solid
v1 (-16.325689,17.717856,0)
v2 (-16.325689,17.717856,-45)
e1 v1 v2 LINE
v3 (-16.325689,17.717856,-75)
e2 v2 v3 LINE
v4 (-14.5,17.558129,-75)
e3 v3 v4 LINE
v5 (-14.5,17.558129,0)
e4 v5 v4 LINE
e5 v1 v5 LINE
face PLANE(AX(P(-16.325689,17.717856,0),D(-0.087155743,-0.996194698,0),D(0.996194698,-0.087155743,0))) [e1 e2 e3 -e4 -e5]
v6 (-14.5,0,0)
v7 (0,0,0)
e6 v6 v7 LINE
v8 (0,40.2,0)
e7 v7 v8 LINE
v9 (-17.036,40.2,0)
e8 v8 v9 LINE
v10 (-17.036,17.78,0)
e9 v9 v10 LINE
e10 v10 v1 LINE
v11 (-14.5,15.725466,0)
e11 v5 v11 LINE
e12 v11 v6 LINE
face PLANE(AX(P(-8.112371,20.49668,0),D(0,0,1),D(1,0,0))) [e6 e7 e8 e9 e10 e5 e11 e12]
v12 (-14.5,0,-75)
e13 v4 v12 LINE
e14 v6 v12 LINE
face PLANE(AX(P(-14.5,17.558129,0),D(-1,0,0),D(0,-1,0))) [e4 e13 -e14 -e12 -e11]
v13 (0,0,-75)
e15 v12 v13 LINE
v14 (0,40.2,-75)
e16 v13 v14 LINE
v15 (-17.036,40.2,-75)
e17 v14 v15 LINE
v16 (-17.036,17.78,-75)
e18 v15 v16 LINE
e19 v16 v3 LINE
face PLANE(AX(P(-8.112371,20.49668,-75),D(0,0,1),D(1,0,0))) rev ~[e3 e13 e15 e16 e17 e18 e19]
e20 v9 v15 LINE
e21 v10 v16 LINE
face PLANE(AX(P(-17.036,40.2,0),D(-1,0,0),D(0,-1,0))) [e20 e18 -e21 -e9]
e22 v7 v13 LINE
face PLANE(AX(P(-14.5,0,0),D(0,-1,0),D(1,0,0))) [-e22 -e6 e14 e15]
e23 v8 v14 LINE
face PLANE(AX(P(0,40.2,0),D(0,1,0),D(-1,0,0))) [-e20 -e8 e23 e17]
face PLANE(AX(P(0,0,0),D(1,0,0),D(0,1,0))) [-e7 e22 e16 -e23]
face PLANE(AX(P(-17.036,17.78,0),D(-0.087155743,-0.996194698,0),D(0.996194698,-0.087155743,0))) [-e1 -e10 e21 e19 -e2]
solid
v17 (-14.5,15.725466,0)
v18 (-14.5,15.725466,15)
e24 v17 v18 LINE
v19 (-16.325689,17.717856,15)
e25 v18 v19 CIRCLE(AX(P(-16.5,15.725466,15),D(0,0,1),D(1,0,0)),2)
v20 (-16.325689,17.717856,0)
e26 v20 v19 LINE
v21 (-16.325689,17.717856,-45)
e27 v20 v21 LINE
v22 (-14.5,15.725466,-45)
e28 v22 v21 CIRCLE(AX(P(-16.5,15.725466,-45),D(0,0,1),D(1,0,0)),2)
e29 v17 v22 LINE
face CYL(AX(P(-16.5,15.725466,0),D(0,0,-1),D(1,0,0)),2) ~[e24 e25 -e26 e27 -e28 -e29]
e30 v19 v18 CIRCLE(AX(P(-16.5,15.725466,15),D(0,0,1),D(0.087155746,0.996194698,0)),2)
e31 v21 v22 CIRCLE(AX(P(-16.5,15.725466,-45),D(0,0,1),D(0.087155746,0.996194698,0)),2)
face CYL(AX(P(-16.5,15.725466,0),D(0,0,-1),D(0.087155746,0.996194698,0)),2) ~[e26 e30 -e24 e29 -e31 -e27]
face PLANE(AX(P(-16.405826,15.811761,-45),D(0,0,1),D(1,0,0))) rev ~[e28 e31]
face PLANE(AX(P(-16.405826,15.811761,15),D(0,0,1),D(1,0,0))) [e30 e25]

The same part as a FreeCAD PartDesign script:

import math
import FreeCAD as App
import Part
import Sketcher
Q = App.Units.Quantity


def add_polygon(sketch, points):
    """Adds a closed chain of lines whose ends are joined by coincident constraints."""
    first, n = sketch.GeometryCount, len(points)
    for a, b in zip(points, points[1:] + points[:1]):
        sketch.addGeometry(Part.LineSegment(App.Vector(*a, 0), App.Vector(*b, 0)), False)
    for i in range(n):
        sketch.addConstraint(Sketcher.Constraint("Coincident", first + i, 2, first + (i + 1) % n, 1))

doc = App.newDocument("Part")
body = doc.addObject("PartDesign::Body", "Body")
body.AllowCompound = True

sketch1 = body.newObject("Sketcher::SketchObject", "Sketch")
sketch1.AttachmentSupport = (doc.getObject("XY_Plane"), [""])
sketch1.MapMode = "FlatFace"
add_polygon(sketch1, [(-14.5, 0), (0, 0), (0, 40.2), (-17, 40.2), (-17, 17.8), (-16.3, 17.7), (-14.5, 17.6)])
sketch1.addConstraint([
    Sketcher.Constraint("Horizontal", 0),
    Sketcher.Constraint("Vertical", 1),
    Sketcher.Constraint("Horizontal", 2),
    Sketcher.Constraint("Vertical", 3),
    Sketcher.Constraint("Vertical", 6),
    Sketcher.Constraint("Coincident", 0, 2, -1, 1),
    Sketcher.Constraint("Parallel", 4, 5),
    Sketcher.Constraint("Angle", 4, Q("-5 deg")),
    Sketcher.Constraint("DistanceX", 0, 1, 0, 2, 14.5),
    Sketcher.Constraint("DistanceY", 1, 1, 1, 2, 40.2),
    Sketcher.Constraint("DistanceY", 3, 2, 3, 1, 22.42),
    Sketcher.Constraint("DistanceX", 2, 2, 2, 1, 17.036),
    Sketcher.Constraint("DistanceX", 4, 2, -1, 1, 16.325689),
])
pad1 = body.newObject("PartDesign::Pad", "Pad")
pad1.Profile = sketch1
pad1.Length = 75
pad1.Reversed = True

sketch2 = body.newObject("Sketcher::SketchObject", "Sketch001")
sketch2.AttachmentSupport = (doc.getObject("XY_Plane"), [""])
sketch2.MapMode = "FlatFace"
sketch2.addGeometry([
    Part.ArcOfCircle(Part.Circle(App.Vector(-16.5, 15.7, 0), App.Vector(0, 0, 1), 2), math.radians(85), math.radians(360)),
    Part.ArcOfCircle(Part.Circle(App.Vector(-16.5, 15.7, 0), App.Vector(0, 0, 1), 2), math.radians(0), math.radians(85)),
], False)
sketch2.addConstraint([
    Sketcher.Constraint("Tangent", 0, 1, 1, 2),
    Sketcher.Constraint("Coincident", 1, 1, 0, 2),
    Sketcher.Constraint("Horizontal", 0, 3, 1, 1),
    Sketcher.Constraint("Radius", 0, 2.0),
    Sketcher.Constraint("DistanceX", 0, 3, -1, 1, 16.5),
    Sketcher.Constraint("DistanceX", 0, 1, -1, 1, 16.325689),
    Sketcher.Constraint("DistanceY", -1, 1, 0, 3, 15.725466),
])
pad2 = body.newObject("PartDesign::Pad", "Pad001")
pad2.Profile = sketch2
pad2.Type = "TwoLengths"
pad2.Length = 45
pad2.Length2 = 15
pad2.Reversed = True

doc.recompute()
